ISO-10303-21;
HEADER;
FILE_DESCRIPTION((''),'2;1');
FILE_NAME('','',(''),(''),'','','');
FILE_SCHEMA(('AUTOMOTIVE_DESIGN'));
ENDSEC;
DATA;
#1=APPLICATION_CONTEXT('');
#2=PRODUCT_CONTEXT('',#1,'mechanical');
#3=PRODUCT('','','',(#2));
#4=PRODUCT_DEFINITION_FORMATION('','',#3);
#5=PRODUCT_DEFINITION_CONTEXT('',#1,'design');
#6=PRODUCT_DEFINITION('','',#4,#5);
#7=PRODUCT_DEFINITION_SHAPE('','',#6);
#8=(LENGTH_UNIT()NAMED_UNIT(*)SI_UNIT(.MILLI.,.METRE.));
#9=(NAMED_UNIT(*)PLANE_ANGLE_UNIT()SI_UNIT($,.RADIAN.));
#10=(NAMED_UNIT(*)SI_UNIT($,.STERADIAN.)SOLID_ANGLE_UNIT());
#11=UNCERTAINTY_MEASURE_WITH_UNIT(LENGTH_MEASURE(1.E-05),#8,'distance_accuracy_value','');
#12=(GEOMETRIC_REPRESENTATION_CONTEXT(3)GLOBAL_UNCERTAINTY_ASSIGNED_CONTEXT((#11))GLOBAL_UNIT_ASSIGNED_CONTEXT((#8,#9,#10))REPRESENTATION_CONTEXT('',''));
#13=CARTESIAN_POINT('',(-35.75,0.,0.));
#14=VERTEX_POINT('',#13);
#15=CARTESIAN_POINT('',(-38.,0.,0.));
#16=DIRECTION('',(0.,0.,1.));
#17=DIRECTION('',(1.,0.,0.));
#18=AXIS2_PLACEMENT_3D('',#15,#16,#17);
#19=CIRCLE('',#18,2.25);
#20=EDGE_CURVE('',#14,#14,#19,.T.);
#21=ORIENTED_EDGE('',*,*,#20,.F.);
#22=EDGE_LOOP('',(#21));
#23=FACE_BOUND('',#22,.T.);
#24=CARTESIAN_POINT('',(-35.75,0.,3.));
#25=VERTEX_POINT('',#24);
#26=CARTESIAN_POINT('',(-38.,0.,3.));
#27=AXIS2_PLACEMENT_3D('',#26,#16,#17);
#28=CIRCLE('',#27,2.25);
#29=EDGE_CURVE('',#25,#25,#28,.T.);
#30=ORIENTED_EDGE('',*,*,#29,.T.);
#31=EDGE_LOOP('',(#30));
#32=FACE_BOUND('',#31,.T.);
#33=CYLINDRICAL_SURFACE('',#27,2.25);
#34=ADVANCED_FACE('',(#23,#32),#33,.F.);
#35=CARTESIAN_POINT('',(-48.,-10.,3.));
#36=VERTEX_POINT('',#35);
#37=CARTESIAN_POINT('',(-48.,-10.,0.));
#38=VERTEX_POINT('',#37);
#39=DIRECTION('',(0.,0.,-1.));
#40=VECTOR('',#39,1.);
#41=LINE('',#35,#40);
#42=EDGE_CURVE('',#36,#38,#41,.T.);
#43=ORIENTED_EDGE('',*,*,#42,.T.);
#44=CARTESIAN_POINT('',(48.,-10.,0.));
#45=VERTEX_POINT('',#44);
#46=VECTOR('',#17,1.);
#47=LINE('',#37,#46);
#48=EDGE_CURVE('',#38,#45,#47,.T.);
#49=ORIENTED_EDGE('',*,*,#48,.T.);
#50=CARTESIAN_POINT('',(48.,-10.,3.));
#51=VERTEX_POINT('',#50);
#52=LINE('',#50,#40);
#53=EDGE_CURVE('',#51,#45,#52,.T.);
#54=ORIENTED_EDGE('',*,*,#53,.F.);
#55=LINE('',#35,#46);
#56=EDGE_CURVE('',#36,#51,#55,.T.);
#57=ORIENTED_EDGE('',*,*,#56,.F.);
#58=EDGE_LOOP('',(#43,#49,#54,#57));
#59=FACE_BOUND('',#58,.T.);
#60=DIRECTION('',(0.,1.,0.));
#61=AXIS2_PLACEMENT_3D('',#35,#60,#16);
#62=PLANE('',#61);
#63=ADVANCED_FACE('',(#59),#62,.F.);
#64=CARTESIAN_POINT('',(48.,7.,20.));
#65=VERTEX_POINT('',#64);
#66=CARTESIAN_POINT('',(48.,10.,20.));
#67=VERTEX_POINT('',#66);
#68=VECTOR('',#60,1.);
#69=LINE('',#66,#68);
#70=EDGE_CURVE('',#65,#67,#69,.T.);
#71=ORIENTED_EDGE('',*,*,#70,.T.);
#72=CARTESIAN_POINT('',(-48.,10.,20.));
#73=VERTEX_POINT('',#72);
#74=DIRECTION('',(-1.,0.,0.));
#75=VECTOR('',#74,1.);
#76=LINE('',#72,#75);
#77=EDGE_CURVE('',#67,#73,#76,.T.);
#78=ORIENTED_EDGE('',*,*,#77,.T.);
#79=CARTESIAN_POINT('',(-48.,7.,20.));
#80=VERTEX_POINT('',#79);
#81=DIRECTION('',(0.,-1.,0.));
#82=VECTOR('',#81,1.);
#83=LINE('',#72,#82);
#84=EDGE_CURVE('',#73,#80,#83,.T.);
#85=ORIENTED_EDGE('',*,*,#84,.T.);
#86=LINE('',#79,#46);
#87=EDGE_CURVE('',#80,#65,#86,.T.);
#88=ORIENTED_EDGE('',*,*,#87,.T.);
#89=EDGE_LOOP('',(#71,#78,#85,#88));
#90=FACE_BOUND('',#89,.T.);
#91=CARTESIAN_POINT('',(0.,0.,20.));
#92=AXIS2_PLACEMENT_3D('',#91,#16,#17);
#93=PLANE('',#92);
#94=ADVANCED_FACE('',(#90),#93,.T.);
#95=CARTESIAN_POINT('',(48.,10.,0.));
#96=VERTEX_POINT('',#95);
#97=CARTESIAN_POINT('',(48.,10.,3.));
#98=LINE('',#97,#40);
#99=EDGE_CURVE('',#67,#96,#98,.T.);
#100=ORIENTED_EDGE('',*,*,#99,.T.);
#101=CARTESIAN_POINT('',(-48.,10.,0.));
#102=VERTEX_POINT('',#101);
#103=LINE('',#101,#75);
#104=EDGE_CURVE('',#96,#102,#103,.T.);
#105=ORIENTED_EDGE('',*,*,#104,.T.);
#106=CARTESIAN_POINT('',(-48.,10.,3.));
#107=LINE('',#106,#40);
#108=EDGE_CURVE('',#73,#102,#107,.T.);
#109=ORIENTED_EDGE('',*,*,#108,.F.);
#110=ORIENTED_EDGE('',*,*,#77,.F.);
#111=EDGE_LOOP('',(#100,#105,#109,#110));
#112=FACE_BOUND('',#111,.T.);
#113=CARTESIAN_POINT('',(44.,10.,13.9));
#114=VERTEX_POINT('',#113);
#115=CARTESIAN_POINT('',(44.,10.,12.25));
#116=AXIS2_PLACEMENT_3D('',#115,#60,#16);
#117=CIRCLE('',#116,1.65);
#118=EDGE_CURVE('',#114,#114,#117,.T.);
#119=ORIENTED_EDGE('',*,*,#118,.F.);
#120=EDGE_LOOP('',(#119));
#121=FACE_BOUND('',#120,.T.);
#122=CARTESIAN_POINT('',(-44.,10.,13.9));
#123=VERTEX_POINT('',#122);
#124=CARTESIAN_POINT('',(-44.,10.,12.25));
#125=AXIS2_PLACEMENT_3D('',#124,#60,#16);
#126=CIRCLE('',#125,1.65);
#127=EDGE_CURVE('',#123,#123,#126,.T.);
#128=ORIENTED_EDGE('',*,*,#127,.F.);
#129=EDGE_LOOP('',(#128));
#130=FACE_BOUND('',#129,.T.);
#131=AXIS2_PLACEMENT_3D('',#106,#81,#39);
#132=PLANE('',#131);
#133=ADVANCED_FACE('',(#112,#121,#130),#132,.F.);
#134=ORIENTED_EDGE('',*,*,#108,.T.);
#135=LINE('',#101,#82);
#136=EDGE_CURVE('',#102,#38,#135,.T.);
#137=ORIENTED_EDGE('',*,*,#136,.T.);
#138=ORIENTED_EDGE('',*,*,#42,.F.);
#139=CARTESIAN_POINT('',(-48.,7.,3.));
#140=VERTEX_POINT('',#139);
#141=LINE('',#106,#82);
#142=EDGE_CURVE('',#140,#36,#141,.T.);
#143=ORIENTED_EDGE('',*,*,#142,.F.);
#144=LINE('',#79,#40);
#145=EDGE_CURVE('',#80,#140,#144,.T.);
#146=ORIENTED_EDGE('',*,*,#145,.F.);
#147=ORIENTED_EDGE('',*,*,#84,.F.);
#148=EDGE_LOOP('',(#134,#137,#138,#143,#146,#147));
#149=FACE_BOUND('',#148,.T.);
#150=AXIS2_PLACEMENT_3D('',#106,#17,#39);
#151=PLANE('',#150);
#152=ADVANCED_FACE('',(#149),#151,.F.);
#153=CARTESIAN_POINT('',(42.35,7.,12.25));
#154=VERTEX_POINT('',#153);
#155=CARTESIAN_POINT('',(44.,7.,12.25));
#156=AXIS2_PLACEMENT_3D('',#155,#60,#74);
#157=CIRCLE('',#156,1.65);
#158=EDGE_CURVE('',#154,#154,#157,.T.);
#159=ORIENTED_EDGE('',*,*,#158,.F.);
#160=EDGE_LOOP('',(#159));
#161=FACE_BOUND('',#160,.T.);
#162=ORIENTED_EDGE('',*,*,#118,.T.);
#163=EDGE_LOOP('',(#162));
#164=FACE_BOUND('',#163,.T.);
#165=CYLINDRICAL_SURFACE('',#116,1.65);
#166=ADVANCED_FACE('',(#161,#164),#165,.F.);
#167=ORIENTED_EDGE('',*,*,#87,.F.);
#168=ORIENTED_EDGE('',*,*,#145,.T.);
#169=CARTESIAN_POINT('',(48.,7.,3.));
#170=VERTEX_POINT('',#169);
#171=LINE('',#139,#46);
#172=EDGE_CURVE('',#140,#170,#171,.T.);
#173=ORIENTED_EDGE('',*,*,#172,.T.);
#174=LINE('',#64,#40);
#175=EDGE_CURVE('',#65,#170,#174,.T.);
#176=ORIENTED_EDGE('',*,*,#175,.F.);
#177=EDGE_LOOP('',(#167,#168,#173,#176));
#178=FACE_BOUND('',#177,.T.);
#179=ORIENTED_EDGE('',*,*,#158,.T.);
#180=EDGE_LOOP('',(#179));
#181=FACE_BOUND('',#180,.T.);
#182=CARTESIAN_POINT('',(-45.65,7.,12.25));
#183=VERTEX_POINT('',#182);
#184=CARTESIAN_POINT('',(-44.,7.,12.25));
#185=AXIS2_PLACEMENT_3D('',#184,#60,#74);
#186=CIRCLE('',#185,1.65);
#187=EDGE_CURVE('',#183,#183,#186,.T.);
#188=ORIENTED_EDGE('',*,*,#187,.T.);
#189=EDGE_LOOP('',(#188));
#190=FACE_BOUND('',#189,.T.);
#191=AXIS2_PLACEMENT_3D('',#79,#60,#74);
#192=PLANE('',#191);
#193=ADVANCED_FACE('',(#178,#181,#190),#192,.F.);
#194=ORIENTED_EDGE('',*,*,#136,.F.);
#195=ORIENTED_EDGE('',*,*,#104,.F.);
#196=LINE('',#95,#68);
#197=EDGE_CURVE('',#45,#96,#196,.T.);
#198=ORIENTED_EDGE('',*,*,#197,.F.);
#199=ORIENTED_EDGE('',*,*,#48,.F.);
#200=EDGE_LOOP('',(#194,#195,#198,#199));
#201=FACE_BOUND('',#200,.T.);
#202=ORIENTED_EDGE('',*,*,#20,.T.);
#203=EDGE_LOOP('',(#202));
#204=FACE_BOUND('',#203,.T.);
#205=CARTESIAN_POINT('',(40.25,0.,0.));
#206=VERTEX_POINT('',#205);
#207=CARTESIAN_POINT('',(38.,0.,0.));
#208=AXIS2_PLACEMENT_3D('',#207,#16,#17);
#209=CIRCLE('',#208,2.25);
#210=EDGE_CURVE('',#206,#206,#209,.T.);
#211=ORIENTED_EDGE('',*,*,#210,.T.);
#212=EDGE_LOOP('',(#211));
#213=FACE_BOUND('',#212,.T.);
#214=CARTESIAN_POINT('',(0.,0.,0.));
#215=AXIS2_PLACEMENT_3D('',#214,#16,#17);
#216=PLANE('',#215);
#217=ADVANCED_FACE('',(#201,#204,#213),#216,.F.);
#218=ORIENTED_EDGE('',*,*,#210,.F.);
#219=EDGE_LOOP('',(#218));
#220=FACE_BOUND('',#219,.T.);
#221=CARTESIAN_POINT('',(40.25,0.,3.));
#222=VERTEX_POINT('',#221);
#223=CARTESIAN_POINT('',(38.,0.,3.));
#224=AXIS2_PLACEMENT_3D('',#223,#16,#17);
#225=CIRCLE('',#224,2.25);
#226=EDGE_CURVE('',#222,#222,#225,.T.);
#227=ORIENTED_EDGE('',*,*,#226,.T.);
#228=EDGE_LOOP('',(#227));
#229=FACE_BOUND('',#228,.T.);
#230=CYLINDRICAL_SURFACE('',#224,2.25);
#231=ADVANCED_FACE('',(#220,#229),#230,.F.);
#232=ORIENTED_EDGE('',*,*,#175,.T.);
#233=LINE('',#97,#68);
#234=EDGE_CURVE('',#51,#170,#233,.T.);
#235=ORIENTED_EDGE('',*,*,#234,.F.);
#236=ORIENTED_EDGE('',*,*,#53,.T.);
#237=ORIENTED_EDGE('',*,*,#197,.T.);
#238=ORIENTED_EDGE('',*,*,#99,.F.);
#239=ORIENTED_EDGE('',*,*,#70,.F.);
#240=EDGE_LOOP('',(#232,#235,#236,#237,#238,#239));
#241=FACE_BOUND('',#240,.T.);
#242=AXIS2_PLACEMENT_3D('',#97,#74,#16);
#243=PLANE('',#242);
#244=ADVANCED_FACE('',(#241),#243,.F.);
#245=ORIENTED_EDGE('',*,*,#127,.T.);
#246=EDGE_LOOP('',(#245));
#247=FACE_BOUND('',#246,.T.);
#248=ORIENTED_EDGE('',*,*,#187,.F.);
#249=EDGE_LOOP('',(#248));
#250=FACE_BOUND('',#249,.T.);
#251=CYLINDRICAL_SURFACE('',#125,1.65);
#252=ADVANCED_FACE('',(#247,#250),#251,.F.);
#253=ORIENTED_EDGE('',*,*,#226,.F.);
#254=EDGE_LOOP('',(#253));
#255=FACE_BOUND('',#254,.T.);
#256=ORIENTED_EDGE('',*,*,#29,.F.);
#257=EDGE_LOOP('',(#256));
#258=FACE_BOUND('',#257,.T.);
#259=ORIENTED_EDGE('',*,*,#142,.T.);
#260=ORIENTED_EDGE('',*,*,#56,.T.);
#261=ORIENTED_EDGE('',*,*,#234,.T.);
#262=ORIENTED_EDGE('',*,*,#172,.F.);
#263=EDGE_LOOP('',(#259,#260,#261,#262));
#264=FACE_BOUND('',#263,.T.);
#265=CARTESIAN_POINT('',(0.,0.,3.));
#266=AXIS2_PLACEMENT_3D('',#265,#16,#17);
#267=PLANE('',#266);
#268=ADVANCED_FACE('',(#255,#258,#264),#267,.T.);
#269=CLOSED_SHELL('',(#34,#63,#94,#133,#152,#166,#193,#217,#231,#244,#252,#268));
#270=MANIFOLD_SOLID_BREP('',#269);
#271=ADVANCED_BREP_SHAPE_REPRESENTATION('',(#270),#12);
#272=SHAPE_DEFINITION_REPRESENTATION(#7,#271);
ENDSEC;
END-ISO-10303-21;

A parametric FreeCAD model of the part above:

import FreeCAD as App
import Part
import Sketcher
Q = App.Units.Quantity


def add_polygon(sketch, points):
    """Adds a closed chain of lines whose ends are joined by coincident constraints."""
    first, n = sketch.GeometryCount, len(points)
    for a, b in zip(points, points[1:] + points[:1]):
        sketch.addGeometry(Part.LineSegment(App.Vector(*a, 0), App.Vector(*b, 0)), False)
    for i in range(n):
        sketch.addConstraint(Sketcher.Constraint("Coincident", first + i, 2, first + (i + 1) % n, 1))

doc = App.newDocument("Part")
params = doc.addObject("Spreadsheet::Sheet", "Params")
for row, (alias, value) in enumerate([
    ("sketch1_width", "96 mm"),
    ("sketch1_height", "20 mm"),
    ("pad1_length", "3 mm"),
    ("sketch2_width", "96 mm"),
    ("sketch2_height", "3 mm"),
    ("pad2_length", "17 mm"),
    ("sketch3_diameter", "4.5 mm"),
    ("hole_diameter", "4.5 mm"),
    ("sketch4_diameter", "3.3 mm"),
    ("hole2_diameter", "3.3 mm"),
], start=1):
    params.set(f"A{row}", alias)
    params.set(f"B{row}", "=" + value)
    params.setAlias(f"B{row}", alias)

body = doc.addObject("PartDesign::Body", "Body")

# Sketch on XY plane
sketch1 = body.newObject("Sketcher::SketchObject", "Sketch")
sketch1.AttachmentSupport = (doc.getObject("XY_Plane"), [""])
sketch1.MapMode = "FlatFace"
add_polygon(sketch1, [(-48, 10), (-48, -10), (48, -10), (48, 10)])  # lines 0-3
sketch1.addConstraint(Sketcher.Constraint("Vertical", 0))
sketch1.addConstraint(Sketcher.Constraint("Horizontal", 1))
sketch1.addConstraint(Sketcher.Constraint("Vertical", 2))
sketch1.addConstraint(Sketcher.Constraint("Horizontal", 3))
sketch1.addConstraint(Sketcher.Constraint("Symmetric", 0, 2, 2, 2, -1, 1))
sketch1.addConstraint(Sketcher.Constraint("DistanceX", 1, 1, 1, 2, Q("96 mm")))
sketch1.addConstraint(Sketcher.Constraint("DistanceY", 0, 2, 0, 1, Q("20 mm")))
sketch1.setExpression("Constraints[9]", "Params.sketch1_width")
sketch1.setExpression("Constraints[10]", "Params.sketch1_height")
pad1 = body.newObject("PartDesign::Pad", "Pad")
pad1.Profile = sketch1
pad1.setExpression("Length", "Params.pad1_length")

# Sketch on XY plane
sketch2 = body.newObject("Sketcher::SketchObject", "Sketch001")
sketch2.AttachmentSupport = (doc.getObject("XY_Plane"), [""])
sketch2.MapMode = "FlatFace"
sketch2.AttachmentOffset = App.Placement(App.Vector(0, 0, 3), App.Rotation())
add_polygon(sketch2, [(-48, 10), (-48, 7), (48, 7), (48, 10)])  # lines 0-3
sketch2.addConstraint(Sketcher.Constraint("Vertical", 0))
sketch2.addConstraint(Sketcher.Constraint("Horizontal", 1))
sketch2.addConstraint(Sketcher.Constraint("Vertical", 2))
sketch2.addConstraint(Sketcher.Constraint("Horizontal", 3))
sketch2.addConstraint(Sketcher.Constraint("DistanceX", 1, 1, 1, 2, Q("96 mm")))
sketch2.addConstraint(Sketcher.Constraint("DistanceY", 0, 2, 0, 1, Q("3 mm")))
sketch2.addConstraint(Sketcher.Constraint("DistanceX", 0, 2, -1, 1, Q("48 mm")))
sketch2.addConstraint(Sketcher.Constraint("DistanceY", -1, 1, 0, 2, Q("7 mm")))
sketch2.setExpression("Constraints[8]", "Params.sketch2_width")
sketch2.setExpression("Constraints[9]", "Params.sketch2_height")
pad2 = body.newObject("PartDesign::Pad", "Pad001")
pad2.Profile = sketch2
pad2.setExpression("Length", "Params.pad2_length")

# Sketch on XY plane
sketch3 = body.newObject("Sketcher::SketchObject", "Sketch002")
sketch3.AttachmentSupport = (doc.getObject("XY_Plane"), [""])
sketch3.MapMode = "FlatFace"
sketch3.AttachmentOffset = App.Placement(App.Vector(0, 0, 3), App.Rotation())
sketch3.addGeometry(Part.Circle(App.Vector(-38, 0, 0), App.Vector(0, 0, 1), 2.2), False)
sketch3.addGeometry(Part.Circle(App.Vector(38, 0, 0), App.Vector(0, 0, 1), 2.2), False)
sketch3.addConstraint(Sketcher.Constraint("Equal", 0, 1))
sketch3.addConstraint(Sketcher.Constraint("Symmetric", 0, 3, 1, 3, -1, 1))
sketch3.addConstraint(Sketcher.Constraint("PointOnObject", 0, 3, -1))
sketch3.addConstraint(Sketcher.Constraint("Diameter", 0, Q("4.5 mm")))
sketch3.addConstraint(Sketcher.Constraint("DistanceX", 0, 3, -1, 1, Q("38 mm")))
sketch3.setExpression("Constraints[3]", "Params.sketch3_diameter")
doc.recompute()
hole = body.newObject("PartDesign::Hole", "Hole")
hole.Profile = sketch3
hole.ThreadType = "None"
hole.setExpression("Diameter", "Params.hole_diameter")
hole.DepthType = "ThroughAll"

# Sketch on XZ plane
sketch4 = body.newObject("Sketcher::SketchObject", "Sketch003")
sketch4.AttachmentSupport = (doc.getObject("XZ_Plane"), [""])
sketch4.MapMode = "FlatFace"
sketch4.AttachmentOffset = App.Placement(App.Vector(0, 0, -10), App.Rotation())
sketch4.addGeometry(Part.Circle(App.Vector(-44, 12.2, 0), App.Vector(0, 0, 1), 1.6), False)
sketch4.addGeometry(Part.Circle(App.Vector(44, 12.2, 0), App.Vector(0, 0, 1), 1.6), False)
sketch4.addConstraint(Sketcher.Constraint("Equal", 0, 1))
sketch4.addConstraint(Sketcher.Constraint("Symmetric", 0, 3, 1, 3, -2))
sketch4.addConstraint(Sketcher.Constraint("Diameter", 0, Q("3.3 mm")))
sketch4.addConstraint(Sketcher.Constraint("DistanceX", 0, 3, -1, 1, Q("44 mm")))
sketch4.addConstraint(Sketcher.Constraint("DistanceY", -1, 1, 0, 3, Q("12.25 mm")))
sketch4.setExpression("Constraints[2]", "Params.sketch4_diameter")
doc.recompute()
hole2 = body.newObject("PartDesign::Hole", "Hole001")
hole2.Profile = sketch4
hole2.ThreadType = "None"
hole2.setExpression("Diameter", "Params.hole2_diameter")
hole2.DepthType = "ThroughAll"
hole2.Reversed = True

doc.recompute()
